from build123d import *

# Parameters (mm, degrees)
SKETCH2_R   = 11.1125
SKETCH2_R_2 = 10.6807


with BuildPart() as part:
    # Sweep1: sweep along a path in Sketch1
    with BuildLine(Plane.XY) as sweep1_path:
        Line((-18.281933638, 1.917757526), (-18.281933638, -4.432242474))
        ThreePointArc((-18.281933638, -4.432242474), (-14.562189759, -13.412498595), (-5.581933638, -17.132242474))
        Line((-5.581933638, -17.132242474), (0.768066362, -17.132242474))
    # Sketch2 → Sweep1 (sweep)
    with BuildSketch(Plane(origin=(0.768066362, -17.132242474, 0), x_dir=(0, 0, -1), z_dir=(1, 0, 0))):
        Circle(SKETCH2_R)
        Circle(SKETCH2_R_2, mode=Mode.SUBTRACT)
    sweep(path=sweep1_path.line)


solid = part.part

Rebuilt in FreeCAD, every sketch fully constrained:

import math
import FreeCAD as App
import Part
import Sketcher
Q = App.Units.Quantity

doc = App.newDocument("Part")
body = doc.addObject("PartDesign::Body", "Body")

sketch1 = doc.addObject("Sketcher::SketchObject", "Sketch")
body.addObject(sketch1)
sketch1.AttachmentSupport = (doc.YZ_Plane, [""])
sketch1.MapMode = "FlatFace"
sketch1.AttachmentOffset = App.Placement(App.Vector(0, 0, 0.768066), App.Rotation())
sketch1.addGeometry([
    Part.Circle(App.Vector(-17, 0, 0), App.Vector(0, 0, 1), 11),
    Part.Circle(App.Vector(-17, 0, 0), App.Vector(0, 0, 1), 11),
], False)
sketch1.addConstraint([
    Sketcher.Constraint("Coincident", 1, 3, 0, 3),
    Sketcher.Constraint("PointOnObject", 0, 3, -1),
    Sketcher.Constraint("Diameter", 0, Q("0.875 in")),
    Sketcher.Constraint("Diameter", 1, Q("0.841 in")),
    Sketcher.Constraint("DistanceX", 0, 3, -1, 1, 17.132242),
])

sketch2 = doc.addObject("Sketcher::SketchObject", "Sketch001")
body.addObject(sketch2)
sketch2.AttachmentSupport = (doc.XY_Plane, [""])
sketch2.MapMode = "FlatFace"
sketch2.addGeometry([
    Part.LineSegment(App.Vector(-18, 2, 0), App.Vector(-18, -4, 0)),
    Part.ArcOfCircle(Part.Circle(App.Vector(-6, -4, 0), App.Vector(0, 0, 1), 13), math.radians(180), math.radians(270)),
    Part.LineSegment(App.Vector(-6, -17, 0), App.Vector(1, -17, 0)),
], False)
sketch2.addConstraint([
    Sketcher.Constraint("Tangent", 0, 2, 1, 1),
    Sketcher.Constraint("Tangent", 1, 2, 2, 1),
    Sketcher.Constraint("Vertical", 0),
    Sketcher.Constraint("Horizontal", 2),
    Sketcher.Constraint("Equal", 2, 0),
    Sketcher.Constraint("Radius", 1, Q("0.5 in")),
    Sketcher.Constraint("DistanceX", 2, 1, 2, 2, Q("0.25 in")),
    Sketcher.Constraint("DistanceX", 1, 3, -1, 1, 5.581934),
    Sketcher.Constraint("DistanceY", 1, 3, -1, 1, 4.432242),
])
doc.recompute()

additivepipe = doc.addObject("PartDesign::AdditivePipe", "AdditivePipe")
body.addObject(additivepipe)
additivepipe.Profile = sketch1
additivepipe.Spine = (sketch2, ["Edge1", "Edge2", "Edge3"])

doc.recompute()
